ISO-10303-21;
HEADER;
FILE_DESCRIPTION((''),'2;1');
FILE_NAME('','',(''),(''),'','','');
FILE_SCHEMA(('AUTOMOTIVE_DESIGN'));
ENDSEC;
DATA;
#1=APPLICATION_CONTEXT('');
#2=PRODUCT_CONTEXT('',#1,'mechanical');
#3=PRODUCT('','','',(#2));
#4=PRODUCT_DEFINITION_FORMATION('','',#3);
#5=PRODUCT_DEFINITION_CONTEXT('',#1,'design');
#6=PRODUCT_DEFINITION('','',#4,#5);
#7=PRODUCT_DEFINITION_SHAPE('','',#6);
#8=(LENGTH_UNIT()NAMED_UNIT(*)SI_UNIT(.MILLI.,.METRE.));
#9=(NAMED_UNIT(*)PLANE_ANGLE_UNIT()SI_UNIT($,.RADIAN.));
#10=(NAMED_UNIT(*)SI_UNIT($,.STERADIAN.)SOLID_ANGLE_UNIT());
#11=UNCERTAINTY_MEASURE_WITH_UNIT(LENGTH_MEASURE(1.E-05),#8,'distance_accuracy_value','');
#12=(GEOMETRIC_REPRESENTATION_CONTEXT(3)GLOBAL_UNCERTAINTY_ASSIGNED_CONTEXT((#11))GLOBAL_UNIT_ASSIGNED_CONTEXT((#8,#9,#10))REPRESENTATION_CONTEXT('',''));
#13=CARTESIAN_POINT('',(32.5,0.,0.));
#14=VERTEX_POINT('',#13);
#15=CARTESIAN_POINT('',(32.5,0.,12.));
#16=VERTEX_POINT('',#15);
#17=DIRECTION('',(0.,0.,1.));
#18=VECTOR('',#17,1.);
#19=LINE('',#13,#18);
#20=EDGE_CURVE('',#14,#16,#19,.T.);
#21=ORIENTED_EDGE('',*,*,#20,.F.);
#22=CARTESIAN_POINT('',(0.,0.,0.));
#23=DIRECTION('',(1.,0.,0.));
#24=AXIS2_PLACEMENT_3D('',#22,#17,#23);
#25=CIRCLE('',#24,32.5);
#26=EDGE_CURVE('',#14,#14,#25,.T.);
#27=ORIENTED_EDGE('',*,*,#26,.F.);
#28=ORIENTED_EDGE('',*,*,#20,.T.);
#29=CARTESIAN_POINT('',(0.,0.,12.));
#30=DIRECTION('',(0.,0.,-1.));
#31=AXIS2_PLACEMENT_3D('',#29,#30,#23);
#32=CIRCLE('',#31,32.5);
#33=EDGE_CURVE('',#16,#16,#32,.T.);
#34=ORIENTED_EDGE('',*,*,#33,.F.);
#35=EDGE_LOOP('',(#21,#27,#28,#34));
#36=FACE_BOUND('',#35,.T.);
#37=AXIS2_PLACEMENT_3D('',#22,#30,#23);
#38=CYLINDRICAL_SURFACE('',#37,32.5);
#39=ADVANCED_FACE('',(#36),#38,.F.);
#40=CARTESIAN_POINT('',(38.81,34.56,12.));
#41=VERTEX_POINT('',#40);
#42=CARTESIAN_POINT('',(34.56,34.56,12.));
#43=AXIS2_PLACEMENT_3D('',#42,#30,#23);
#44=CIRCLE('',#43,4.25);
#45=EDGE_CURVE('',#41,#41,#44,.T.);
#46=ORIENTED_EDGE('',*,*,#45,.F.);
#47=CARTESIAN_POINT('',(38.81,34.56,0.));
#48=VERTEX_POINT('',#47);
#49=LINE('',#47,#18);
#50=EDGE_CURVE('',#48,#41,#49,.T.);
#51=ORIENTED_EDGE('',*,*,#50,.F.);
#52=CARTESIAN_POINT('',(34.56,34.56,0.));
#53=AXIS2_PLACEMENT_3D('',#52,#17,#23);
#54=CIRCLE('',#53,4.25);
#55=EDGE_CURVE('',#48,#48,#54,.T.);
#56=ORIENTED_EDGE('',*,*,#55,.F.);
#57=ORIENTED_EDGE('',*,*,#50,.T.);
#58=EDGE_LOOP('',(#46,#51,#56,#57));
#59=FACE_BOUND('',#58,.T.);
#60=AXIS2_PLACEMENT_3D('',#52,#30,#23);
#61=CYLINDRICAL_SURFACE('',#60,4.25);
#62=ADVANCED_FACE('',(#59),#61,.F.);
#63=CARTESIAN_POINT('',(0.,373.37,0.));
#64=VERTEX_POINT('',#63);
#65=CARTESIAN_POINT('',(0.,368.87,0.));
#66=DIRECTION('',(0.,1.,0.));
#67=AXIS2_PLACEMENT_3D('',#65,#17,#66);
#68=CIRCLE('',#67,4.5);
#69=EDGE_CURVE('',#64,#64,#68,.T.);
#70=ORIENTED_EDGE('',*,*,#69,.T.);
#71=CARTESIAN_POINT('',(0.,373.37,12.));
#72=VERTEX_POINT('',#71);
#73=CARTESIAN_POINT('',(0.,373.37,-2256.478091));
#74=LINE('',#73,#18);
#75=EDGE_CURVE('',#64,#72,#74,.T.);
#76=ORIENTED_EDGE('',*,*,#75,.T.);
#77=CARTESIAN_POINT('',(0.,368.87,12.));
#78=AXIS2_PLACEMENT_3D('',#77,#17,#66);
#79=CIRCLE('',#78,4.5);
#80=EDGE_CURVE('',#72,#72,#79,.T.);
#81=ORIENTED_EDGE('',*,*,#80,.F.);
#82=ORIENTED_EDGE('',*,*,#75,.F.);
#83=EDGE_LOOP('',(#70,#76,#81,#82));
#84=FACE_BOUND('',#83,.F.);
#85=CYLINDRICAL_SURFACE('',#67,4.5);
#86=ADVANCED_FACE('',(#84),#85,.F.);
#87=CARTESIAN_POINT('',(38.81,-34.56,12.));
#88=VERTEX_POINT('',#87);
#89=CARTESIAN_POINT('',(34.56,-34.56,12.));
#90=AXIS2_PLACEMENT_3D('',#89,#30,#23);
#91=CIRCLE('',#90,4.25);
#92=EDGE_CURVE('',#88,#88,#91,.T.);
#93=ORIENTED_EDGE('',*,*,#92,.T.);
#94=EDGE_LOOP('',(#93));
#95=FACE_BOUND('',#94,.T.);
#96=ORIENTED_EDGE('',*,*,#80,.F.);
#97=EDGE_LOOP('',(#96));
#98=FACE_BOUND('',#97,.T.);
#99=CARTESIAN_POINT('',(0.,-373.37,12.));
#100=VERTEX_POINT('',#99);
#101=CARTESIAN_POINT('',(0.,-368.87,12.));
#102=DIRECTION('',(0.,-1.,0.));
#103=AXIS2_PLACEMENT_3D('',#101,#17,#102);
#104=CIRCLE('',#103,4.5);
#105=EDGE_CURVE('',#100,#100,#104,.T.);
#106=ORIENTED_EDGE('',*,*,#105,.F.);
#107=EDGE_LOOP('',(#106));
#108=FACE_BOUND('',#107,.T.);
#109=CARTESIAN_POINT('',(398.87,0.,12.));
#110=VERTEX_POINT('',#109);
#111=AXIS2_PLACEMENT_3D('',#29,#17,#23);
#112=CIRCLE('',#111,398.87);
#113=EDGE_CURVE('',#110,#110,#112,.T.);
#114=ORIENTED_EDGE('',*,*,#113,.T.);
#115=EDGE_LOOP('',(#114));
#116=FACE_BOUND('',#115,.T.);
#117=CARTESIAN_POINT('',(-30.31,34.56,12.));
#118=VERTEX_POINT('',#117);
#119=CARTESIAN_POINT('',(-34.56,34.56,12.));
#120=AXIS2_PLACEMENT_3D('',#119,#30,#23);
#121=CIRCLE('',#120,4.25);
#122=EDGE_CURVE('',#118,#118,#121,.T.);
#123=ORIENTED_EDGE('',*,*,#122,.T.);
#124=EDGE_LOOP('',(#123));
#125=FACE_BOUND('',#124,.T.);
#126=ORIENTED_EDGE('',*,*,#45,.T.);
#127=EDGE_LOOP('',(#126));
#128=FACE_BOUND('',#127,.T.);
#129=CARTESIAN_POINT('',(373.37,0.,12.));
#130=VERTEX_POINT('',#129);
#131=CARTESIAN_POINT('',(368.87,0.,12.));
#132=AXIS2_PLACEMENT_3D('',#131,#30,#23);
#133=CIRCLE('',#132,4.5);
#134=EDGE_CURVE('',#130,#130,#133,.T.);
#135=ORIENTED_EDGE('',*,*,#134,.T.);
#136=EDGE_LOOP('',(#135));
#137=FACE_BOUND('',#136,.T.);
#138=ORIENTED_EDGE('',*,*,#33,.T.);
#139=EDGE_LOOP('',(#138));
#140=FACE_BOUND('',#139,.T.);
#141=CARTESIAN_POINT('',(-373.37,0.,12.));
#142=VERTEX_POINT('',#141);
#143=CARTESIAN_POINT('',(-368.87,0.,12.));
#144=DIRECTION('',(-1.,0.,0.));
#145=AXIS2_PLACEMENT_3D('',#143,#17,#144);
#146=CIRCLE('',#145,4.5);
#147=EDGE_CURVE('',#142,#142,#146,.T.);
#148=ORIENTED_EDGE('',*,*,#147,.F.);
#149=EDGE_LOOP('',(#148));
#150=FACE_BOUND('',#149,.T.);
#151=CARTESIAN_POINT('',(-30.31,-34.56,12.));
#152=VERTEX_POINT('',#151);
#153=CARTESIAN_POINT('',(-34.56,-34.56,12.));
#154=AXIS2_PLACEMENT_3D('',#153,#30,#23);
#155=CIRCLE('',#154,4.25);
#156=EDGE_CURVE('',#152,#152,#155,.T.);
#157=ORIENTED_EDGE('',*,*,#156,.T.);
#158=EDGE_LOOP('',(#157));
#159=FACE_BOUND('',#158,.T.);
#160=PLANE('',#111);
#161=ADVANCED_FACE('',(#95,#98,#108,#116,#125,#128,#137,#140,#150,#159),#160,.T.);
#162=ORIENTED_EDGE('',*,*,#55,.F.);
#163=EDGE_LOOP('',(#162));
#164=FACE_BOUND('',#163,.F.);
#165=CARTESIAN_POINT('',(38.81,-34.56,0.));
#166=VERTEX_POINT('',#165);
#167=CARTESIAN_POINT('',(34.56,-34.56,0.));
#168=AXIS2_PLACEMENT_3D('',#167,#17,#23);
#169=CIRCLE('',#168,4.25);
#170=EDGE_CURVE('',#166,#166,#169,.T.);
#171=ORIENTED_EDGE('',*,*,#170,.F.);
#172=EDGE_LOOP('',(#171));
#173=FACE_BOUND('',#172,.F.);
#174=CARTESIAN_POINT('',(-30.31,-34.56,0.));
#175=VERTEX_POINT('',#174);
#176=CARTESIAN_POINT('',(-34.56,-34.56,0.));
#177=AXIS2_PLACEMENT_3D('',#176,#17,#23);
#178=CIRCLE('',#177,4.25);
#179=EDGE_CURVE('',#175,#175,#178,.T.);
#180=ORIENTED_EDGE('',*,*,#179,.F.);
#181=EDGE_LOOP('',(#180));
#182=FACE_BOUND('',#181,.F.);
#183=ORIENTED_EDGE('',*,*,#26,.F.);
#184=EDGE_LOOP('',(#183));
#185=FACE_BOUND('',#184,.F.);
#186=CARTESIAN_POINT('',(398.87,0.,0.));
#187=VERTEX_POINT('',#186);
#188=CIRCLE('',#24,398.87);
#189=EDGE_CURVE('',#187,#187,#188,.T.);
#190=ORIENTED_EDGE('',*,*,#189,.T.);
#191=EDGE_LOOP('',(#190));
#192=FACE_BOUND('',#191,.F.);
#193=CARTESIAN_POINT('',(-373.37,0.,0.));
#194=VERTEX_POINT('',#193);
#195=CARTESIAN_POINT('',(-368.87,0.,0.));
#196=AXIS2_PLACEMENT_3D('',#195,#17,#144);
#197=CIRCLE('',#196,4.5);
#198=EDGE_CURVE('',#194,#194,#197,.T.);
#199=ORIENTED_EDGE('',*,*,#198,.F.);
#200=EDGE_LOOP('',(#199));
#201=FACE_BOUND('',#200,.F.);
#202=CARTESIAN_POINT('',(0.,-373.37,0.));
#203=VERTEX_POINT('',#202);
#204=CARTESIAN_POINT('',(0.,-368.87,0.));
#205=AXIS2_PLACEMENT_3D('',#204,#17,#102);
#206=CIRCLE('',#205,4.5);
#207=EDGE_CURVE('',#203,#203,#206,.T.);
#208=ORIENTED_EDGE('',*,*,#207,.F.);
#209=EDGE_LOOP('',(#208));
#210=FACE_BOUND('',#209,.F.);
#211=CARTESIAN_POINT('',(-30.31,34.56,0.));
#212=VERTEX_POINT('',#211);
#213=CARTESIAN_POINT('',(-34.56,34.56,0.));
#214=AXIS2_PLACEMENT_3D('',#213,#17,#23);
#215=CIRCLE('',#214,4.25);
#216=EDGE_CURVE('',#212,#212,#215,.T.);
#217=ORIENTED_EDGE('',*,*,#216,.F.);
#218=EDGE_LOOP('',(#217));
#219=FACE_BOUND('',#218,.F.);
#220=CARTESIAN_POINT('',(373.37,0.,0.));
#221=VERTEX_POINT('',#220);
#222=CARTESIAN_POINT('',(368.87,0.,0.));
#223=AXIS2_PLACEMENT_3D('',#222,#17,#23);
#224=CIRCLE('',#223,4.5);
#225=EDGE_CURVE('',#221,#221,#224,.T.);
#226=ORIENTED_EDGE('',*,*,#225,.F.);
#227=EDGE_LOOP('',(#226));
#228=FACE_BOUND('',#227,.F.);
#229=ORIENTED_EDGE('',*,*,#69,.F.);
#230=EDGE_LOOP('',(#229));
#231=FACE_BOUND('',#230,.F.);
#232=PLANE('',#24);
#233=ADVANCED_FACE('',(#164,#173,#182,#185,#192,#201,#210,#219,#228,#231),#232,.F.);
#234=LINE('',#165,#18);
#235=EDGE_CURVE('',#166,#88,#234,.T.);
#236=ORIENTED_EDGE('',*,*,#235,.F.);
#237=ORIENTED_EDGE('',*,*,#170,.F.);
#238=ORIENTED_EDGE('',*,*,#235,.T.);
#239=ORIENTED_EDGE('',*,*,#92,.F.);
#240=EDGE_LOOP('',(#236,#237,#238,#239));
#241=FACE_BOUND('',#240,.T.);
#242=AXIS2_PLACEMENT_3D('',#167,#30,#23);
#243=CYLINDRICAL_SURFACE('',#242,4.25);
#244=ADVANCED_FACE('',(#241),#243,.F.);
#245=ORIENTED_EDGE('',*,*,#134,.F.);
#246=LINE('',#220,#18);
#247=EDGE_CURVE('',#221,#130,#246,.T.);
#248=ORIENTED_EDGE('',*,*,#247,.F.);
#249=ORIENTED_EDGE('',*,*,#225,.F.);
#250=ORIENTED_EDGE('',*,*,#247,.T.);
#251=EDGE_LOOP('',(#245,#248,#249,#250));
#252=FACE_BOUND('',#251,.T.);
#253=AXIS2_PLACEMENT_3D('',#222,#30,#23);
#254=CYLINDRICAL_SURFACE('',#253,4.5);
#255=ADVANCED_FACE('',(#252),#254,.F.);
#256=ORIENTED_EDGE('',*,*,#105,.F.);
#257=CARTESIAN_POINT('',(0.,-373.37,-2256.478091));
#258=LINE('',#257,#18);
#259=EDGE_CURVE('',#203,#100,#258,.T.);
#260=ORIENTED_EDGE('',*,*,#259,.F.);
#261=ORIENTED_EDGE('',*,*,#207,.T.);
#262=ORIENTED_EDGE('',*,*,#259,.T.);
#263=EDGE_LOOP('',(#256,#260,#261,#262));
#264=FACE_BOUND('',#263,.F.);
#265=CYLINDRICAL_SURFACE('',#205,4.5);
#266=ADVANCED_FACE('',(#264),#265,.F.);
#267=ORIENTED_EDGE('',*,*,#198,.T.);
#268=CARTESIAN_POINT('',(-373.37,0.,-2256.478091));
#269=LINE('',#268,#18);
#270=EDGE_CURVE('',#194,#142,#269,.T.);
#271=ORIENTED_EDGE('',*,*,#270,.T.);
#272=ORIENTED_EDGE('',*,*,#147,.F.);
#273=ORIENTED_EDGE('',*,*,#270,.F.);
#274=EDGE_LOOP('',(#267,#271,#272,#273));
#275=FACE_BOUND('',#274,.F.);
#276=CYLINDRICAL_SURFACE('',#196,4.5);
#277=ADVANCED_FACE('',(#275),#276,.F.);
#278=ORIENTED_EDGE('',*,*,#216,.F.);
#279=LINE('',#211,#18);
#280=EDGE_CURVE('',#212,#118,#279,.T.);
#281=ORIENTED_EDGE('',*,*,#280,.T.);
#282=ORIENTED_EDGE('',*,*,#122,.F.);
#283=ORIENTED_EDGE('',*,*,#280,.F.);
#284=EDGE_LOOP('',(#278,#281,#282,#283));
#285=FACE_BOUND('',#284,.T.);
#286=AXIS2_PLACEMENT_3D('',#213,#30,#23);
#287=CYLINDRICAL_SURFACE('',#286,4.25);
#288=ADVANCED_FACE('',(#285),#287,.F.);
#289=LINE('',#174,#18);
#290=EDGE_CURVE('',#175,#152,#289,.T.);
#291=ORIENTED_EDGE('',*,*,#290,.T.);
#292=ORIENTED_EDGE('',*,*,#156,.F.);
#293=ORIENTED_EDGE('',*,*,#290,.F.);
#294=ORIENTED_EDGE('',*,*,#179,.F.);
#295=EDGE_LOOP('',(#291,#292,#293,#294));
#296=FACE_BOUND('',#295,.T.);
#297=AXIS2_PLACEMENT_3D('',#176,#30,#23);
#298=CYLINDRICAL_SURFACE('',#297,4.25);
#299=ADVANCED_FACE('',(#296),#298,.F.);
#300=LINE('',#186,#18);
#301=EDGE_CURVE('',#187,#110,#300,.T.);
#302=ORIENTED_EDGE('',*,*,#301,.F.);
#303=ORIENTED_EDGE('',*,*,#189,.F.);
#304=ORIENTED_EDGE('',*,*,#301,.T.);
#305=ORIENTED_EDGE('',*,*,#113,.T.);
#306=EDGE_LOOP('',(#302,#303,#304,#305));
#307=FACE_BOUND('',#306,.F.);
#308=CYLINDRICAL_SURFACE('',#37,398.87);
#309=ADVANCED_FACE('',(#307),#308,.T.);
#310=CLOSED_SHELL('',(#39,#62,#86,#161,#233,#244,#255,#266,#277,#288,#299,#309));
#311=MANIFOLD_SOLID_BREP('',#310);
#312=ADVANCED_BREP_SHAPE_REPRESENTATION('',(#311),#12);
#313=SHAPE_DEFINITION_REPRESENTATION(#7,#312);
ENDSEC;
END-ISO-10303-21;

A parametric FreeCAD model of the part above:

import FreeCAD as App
import Part
import Sketcher

doc = App.newDocument("Part")
body = doc.addObject("PartDesign::Body", "Body")

sketch1 = body.newObject("Sketcher::SketchObject", "Sketch")
sketch1.AttachmentSupport = (doc.getObject("XY_Plane"), [""])
sketch1.MapMode = "FlatFace"
sketch1.addGeometry(Part.Circle(App.Vector(0, 0, 0), App.Vector(0, 0, 1), 399), False)
sketch1.addConstraint([
    Sketcher.Constraint("Coincident", 0, 3, -1, 1),
    Sketcher.Constraint("Diameter", 0, 797.74),
])
pad1 = body.newObject("PartDesign::Pad", "Pad")
pad1.Profile = sketch1
pad1.Length = 12

sketch2 = body.newObject("Sketcher::SketchObject", "Sketch001")
sketch2.AttachmentSupport = (doc.getObject("XY_Plane"), [""])
sketch2.MapMode = "FlatFace"
sketch2.addGeometry([
    Part.Circle(App.Vector(34.6, 34.6, 0), App.Vector(0, 0, 1), 4.2),
    Part.Circle(App.Vector(-34.6, 34.6, 0), App.Vector(0, 0, 1), 4.2),
    Part.Circle(App.Vector(-34.6, -34.6, 0), App.Vector(0, 0, 1), 4.2),
    Part.Circle(App.Vector(34.6, -34.6, 0), App.Vector(0, 0, 1), 4.2),
], False)
sketch2.addConstraint([
    Sketcher.Constraint("Equal", 0, 1),
    Sketcher.Constraint("Equal", 1, 2),
    Sketcher.Constraint("Equal", 2, 3),
    Sketcher.Constraint("Symmetric", 0, 3, 2, 3, -1, 1),
    Sketcher.Constraint("Symmetric", 1, 3, 3, 3, -1, 1),
    Sketcher.Constraint("Symmetric", 0, 3, 1, 3, -2),
    Sketcher.Constraint("Diameter", 0, 8.5),
    Sketcher.Constraint("DistanceX", -1, 1, 0, 3, 34.56),
    Sketcher.Constraint("DistanceY", -1, 1, 0, 3, 34.56),
])
pocket1 = body.newObject("PartDesign::Pocket", "Pocket")
pocket1.Profile = sketch2
pocket1.Type = "ThroughAll"
pocket1.Midplane = True

sketch3 = body.newObject("Sketcher::SketchObject", "Sketch002")
sketch3.AttachmentSupport = (doc.getObject("XY_Plane"), [""])
sketch3.MapMode = "FlatFace"
sketch3.addGeometry(Part.Circle(App.Vector(0, 0, 0), App.Vector(0, 0, 1), 32), False)
sketch3.addConstraint([
    Sketcher.Constraint("Coincident", 0, 3, -1, 1),
    Sketcher.Constraint("Diameter", 0, 65.0),
])
pocket2 = body.newObject("PartDesign::Pocket", "Pocket001")
pocket2.Profile = sketch3
pocket2.Type = "ThroughAll"
pocket2.Midplane = True

sketch4 = body.newObject("Sketcher::SketchObject", "Sketch003")
sketch4.AttachmentSupport = (doc.getObject("XY_Plane"), [""])
sketch4.MapMode = "FlatFace"
sketch4.addGeometry(Part.Circle(App.Vector(368.9, 0, 0), App.Vector(0, 0, 1), 4.5), False)
sketch4.addConstraint([
    Sketcher.Constraint("PointOnObject", 0, 3, -1),
    Sketcher.Constraint("Diameter", 0, 9.0),
    Sketcher.Constraint("DistanceX", -1, 1, 0, 3, 368.87),
])
pocket3 = body.newObject("PartDesign::Pocket", "Pocket002")
pocket3.Profile = sketch4
pocket3.Type = "ThroughAll"
pocket3.Midplane = True
doc.recompute()

polarpattern = body.newObject("PartDesign::PolarPattern", "PolarPattern")
polarpattern.Originals = [pocket3]
polarpattern.Axis = (doc.getObject("Z_Axis"), [""])
polarpattern.Angle = 360
polarpattern.Occurrences = 4
body.Tip = polarpattern

doc.recompute()
